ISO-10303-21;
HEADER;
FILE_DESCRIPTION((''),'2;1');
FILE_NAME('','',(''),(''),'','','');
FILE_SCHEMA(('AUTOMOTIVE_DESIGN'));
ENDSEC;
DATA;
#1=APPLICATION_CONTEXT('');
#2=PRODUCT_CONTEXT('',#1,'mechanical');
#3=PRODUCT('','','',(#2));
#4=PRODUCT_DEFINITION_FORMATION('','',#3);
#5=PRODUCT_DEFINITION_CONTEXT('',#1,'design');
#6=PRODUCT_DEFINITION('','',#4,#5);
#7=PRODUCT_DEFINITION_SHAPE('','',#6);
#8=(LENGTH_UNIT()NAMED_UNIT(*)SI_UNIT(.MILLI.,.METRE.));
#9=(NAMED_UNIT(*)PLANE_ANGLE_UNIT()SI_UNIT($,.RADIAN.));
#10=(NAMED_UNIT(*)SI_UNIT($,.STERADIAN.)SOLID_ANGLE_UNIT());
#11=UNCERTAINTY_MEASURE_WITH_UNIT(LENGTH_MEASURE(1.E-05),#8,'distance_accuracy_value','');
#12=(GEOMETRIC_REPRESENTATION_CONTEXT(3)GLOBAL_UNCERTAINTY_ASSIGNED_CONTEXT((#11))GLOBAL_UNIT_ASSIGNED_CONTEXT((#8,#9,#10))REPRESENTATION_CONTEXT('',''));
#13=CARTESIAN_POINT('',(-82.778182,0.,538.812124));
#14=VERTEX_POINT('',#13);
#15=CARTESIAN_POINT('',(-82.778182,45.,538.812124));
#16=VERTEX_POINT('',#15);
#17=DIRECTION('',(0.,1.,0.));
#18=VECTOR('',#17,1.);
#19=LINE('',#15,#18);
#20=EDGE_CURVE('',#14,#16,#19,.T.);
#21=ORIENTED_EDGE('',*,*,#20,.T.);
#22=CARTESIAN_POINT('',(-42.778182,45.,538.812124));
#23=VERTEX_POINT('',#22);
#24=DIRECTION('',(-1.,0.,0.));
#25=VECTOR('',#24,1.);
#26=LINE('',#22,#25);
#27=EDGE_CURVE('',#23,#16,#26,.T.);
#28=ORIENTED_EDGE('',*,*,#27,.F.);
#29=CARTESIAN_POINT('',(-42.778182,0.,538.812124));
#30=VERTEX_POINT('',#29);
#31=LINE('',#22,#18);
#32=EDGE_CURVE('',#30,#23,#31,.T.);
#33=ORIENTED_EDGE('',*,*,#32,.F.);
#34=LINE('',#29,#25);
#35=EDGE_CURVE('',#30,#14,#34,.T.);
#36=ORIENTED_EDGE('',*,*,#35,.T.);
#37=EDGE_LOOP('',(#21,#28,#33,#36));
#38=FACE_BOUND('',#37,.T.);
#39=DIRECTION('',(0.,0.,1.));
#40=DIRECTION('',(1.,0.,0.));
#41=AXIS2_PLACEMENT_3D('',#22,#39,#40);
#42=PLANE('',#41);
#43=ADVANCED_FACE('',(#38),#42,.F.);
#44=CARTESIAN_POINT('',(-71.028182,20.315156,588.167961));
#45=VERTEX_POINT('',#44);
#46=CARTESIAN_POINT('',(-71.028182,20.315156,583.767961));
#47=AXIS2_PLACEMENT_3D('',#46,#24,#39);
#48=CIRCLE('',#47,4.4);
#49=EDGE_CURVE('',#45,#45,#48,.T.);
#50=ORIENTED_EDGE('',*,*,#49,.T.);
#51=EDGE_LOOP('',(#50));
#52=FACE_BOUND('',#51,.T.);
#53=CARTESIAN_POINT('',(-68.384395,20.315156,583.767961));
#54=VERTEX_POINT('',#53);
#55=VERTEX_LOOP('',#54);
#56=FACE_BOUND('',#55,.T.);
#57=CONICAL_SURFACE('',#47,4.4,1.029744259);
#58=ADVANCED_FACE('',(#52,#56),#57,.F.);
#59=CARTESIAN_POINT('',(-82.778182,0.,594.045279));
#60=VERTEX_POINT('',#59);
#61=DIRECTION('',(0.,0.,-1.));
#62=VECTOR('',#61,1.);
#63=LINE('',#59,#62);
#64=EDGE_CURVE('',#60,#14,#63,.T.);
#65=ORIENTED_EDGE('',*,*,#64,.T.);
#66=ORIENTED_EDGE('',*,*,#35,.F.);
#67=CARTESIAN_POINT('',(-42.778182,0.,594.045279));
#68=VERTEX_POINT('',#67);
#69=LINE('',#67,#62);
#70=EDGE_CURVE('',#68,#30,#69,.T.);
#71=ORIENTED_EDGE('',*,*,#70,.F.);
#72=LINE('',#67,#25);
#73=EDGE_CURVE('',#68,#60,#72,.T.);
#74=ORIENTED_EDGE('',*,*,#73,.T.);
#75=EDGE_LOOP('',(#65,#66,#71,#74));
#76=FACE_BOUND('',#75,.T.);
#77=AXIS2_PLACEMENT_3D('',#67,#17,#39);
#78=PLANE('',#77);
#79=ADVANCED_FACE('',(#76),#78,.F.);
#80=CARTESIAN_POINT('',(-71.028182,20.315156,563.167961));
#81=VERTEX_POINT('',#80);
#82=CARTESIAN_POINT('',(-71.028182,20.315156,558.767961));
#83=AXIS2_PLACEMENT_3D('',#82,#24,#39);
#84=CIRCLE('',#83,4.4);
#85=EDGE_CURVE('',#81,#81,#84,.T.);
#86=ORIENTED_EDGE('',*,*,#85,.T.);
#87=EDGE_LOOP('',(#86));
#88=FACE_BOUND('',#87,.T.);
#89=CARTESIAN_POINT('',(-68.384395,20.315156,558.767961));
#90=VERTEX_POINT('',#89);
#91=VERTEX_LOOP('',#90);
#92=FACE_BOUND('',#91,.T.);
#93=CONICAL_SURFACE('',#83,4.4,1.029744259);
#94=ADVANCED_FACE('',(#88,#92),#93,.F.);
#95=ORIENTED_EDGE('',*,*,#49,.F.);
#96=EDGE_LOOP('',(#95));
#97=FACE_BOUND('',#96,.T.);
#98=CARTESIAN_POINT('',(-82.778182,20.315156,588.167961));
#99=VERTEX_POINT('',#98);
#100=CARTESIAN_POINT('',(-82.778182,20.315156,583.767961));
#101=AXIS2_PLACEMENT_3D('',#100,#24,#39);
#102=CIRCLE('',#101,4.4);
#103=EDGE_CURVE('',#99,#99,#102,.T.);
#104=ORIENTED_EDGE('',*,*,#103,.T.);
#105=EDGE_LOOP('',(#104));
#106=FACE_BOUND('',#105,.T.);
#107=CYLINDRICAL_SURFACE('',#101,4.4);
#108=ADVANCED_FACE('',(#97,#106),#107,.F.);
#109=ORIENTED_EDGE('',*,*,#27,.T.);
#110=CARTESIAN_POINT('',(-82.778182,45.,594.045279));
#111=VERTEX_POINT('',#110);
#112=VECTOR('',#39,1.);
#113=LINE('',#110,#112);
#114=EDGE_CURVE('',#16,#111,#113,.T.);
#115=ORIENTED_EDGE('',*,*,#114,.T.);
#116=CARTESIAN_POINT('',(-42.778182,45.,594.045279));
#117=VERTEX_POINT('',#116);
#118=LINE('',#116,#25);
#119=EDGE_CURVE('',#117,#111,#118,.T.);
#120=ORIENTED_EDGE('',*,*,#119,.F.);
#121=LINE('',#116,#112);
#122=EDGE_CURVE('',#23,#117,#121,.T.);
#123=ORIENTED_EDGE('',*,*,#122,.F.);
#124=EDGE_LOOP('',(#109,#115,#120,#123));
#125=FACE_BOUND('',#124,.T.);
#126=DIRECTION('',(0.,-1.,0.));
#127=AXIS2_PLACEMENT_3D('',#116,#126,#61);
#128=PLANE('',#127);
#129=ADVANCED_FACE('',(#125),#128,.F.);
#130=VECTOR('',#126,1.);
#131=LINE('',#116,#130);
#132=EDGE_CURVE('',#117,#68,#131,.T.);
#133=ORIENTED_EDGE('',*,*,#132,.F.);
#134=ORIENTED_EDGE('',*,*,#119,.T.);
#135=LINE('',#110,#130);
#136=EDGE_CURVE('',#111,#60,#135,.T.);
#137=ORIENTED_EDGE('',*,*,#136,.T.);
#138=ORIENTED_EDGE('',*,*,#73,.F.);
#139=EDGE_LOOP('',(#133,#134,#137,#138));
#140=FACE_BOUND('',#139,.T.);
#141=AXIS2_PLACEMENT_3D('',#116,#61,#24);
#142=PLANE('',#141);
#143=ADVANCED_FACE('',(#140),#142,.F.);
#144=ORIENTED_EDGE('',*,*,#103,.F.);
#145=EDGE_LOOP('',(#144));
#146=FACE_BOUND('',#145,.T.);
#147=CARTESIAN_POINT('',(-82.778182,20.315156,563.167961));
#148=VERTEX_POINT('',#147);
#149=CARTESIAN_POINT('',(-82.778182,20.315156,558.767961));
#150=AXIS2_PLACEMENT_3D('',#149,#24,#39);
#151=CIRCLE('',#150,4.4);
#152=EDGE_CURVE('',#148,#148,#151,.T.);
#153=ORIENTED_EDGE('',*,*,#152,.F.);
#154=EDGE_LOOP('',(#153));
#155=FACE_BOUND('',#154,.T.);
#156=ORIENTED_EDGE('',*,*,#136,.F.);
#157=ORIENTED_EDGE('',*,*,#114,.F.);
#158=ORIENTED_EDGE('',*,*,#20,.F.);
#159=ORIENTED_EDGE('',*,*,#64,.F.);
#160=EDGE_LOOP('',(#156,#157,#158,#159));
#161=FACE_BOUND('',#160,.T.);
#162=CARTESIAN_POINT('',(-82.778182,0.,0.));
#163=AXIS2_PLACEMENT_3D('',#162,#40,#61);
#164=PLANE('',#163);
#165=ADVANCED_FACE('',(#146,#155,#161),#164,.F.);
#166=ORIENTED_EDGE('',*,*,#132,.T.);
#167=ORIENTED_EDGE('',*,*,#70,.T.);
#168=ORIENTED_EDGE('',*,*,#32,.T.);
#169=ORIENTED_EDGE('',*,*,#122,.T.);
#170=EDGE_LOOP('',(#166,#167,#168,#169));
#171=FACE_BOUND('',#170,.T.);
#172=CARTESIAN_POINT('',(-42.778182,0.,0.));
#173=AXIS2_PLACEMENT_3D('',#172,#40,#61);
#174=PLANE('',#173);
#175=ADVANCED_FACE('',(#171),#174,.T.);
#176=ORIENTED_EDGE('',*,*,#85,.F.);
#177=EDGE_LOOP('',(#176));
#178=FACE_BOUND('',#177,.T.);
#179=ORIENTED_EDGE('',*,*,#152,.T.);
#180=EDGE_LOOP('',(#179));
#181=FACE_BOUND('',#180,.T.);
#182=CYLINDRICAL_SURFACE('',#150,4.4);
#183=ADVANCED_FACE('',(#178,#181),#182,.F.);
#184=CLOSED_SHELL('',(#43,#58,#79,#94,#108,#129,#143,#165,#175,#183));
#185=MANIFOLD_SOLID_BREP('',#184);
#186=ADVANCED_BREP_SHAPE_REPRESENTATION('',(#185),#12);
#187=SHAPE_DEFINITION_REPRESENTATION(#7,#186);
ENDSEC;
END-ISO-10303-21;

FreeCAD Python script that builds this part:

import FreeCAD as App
import Part
import Sketcher
Q = App.Units.Quantity


def add_polygon(sketch, points):
    """Adds a closed chain of lines whose ends are joined by coincident constraints."""
    first, n = sketch.GeometryCount, len(points)
    for a, b in zip(points, points[1:] + points[:1]):
        sketch.addGeometry(Part.LineSegment(App.Vector(*a, 0), App.Vector(*b, 0)), False)
    for i in range(n):
        sketch.addConstraint(Sketcher.Constraint("Coincident", first + i, 2, first + (i + 1) % n, 1))

doc = App.newDocument("Part")
body = doc.addObject("PartDesign::Body", "Body")

sketch1 = doc.addObject("Sketcher::SketchObject", "Sketch")
body.addObject(sketch1)
sketch1.AttachmentSupport = (doc.YZ_Plane, [""])
sketch1.MapMode = "FlatFace"
sketch1.AttachmentOffset = App.Placement(App.Vector(0, 0, -82.778182), App.Rotation())
add_polygon(sketch1, [(45, 594.045279), (0, 594.045279), (0, 538.812124), (45, 538.812124)])
sketch1.addConstraint([
    Sketcher.Constraint("Horizontal", 0),
    Sketcher.Constraint("Vertical", 1),
    Sketcher.Constraint("Horizontal", 2),
    Sketcher.Constraint("Vertical", 3),
    Sketcher.Constraint("PointOnObject", 0, 2, -2),
    Sketcher.Constraint("DistanceX", 0, 2, 0, 1, Q("45 mm")),
    Sketcher.Constraint("DistanceY", 1, 2, 1, 1, Q("55.233155 mm")),
    Sketcher.Constraint("DistanceY", -1, 1, 0, 2, Q("594.045279 mm")),
])
pad1 = doc.addObject("PartDesign::Pad", "Pad")
body.addObject(pad1)
pad1.Profile = sketch1
pad1.Length = 40

sketch2 = doc.addObject("Sketcher::SketchObject", "Sketch001")
body.addObject(sketch2)
sketch2.AttachmentSupport = (doc.YZ_Plane, [""])
sketch2.MapMode = "FlatFace"
sketch2.AttachmentOffset = App.Placement(App.Vector(0, 0, -82.778182), App.Rotation())
sketch2.addGeometry([
    Part.Circle(App.Vector(20.315156, 583.767961, 0), App.Vector(0, 0, 1), 4.4),
    Part.Circle(App.Vector(20.315156, 558.767961, 0), App.Vector(0, 0, 1), 4.4),
], False)
sketch2.addConstraint([
    Sketcher.Constraint("Equal", 0, 1),
    Sketcher.Constraint("Vertical", 0, 3, 1, 3),
    Sketcher.Constraint("Diameter", 0, Q("8.8 mm")),
    Sketcher.Constraint("DistanceY", 1, 3, 0, 3, Q("25 mm")),
    Sketcher.Constraint("DistanceY", -1, 1, 0, 3, Q("583.767961 mm")),
    Sketcher.Constraint("DistanceX", -1, 1, 0, 3, Q("20.315156 mm")),
])
doc.recompute()
hole = doc.addObject("PartDesign::Hole", "Hole")
body.addObject(hole)
hole.Profile = sketch2
hole.ThreadType = "None"
hole.Diameter = 8.8
hole.DepthType = "Dimension"
hole.Depth = 11.75
hole.DrillPoint = "Angled"
hole.DrillPointAngle = 118
hole.Reversed = True

doc.recompute()
